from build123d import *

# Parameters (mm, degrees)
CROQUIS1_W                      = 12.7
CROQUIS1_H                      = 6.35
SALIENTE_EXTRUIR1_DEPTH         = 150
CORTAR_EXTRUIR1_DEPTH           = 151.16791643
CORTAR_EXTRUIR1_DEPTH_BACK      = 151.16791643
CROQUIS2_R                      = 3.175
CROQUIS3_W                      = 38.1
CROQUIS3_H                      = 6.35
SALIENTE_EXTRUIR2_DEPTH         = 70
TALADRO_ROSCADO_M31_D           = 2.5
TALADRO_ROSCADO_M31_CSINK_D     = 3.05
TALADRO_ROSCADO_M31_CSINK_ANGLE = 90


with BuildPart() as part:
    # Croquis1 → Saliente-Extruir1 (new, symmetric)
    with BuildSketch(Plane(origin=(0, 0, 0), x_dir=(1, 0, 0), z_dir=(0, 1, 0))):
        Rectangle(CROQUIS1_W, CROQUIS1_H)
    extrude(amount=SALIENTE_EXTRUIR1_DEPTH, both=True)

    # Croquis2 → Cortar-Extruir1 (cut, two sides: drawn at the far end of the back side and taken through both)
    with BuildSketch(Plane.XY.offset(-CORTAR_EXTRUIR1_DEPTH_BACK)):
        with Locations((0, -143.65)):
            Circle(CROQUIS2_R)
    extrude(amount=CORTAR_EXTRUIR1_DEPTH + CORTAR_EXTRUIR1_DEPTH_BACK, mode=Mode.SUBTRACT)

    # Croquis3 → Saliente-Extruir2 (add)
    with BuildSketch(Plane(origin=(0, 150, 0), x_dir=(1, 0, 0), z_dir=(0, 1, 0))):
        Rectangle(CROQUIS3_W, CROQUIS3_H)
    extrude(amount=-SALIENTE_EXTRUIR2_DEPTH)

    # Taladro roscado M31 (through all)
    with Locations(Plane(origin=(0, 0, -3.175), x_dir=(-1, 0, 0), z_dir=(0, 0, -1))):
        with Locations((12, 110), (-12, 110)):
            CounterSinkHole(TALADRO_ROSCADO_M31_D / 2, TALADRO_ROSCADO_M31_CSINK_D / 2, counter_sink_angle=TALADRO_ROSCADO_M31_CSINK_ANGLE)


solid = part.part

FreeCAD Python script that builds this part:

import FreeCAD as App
import Part
import Sketcher

V = App.Vector


def add_polygon(sketch, points):
    """Adds a closed chain of lines whose ends are joined by coincident constraints."""
    first, n = sketch.GeometryCount, len(points)
    for a, b in zip(points, points[1:] + points[:1]):
        sketch.addGeometry(Part.LineSegment(App.Vector(*a, 0), App.Vector(*b, 0)), False)
    for i in range(n):
        sketch.addConstraint(Sketcher.Constraint("Coincident", first + i, 2, first + (i + 1) % n, 1))

doc = App.newDocument("Part")
body = doc.addObject("PartDesign::Body", "Body")

sketch1 = body.newObject("Sketcher::SketchObject", "Sketch")
sketch1.AttachmentSupport = (doc.getObject("XZ_Plane"), [""])
sketch1.MapMode = "FlatFace"
add_polygon(sketch1, [(-6, -3), (-6, 3), (6, 3), (6, -3)])
sketch1.addConstraint(Sketcher.Constraint("Vertical", 0))
sketch1.addConstraint(Sketcher.Constraint("Horizontal", 1))
sketch1.addConstraint(Sketcher.Constraint("Vertical", 2))
sketch1.addConstraint(Sketcher.Constraint("Horizontal", 3))
sketch1.addConstraint(Sketcher.Constraint("Symmetric", 0, 2, 2, 2, -1, 1))
sketch1.addConstraint(Sketcher.Constraint("DistanceX", 1, 1, 1, 2, 12.7))
sketch1.addConstraint(Sketcher.Constraint("DistanceY", 0, 1, 0, 2, 6.35))
pad1 = body.newObject("PartDesign::Pad", "Pad")
pad1.Profile = sketch1
pad1.Length = 300
pad1.Midplane = True

sketch2 = body.newObject("Sketcher::SketchObject", "Sketch001")
sketch2.AttachmentSupport = (doc.getObject("XY_Plane"), [""])
sketch2.MapMode = "FlatFace"
sketch2.addGeometry(Part.Circle(V(0, -143.7, 0), V(0, 0, 1), 3.2), False)
sketch2.addConstraint(Sketcher.Constraint("PointOnObject", 0, 3, -2))
sketch2.addConstraint(Sketcher.Constraint("Diameter", 0, 6.35))
sketch2.addConstraint(Sketcher.Constraint("DistanceY", 0, 3, -1, 1, 143.65))
pocket1 = body.newObject("PartDesign::Pocket", "Pocket")
pocket1.Profile = sketch2
pocket1.Type = "ThroughAll"
pocket1.Midplane = True

sketch3 = body.newObject("Sketcher::SketchObject", "Sketch002")
sketch3.AttachmentSupport = (doc.getObject("XZ_Plane"), [""])
sketch3.MapMode = "FlatFace"
sketch3.AttachmentOffset = App.Placement(V(0, 0, -150), App.Rotation())
add_polygon(sketch3, [(-19, -3), (-19, 3), (19, 3), (19, -3)])
sketch3.addConstraint(Sketcher.Constraint("Vertical", 0))
sketch3.addConstraint(Sketcher.Constraint("Horizontal", 1))
sketch3.addConstraint(Sketcher.Constraint("Vertical", 2))
sketch3.addConstraint(Sketcher.Constraint("Horizontal", 3))
sketch3.addConstraint(Sketcher.Constraint("Symmetric", 0, 2, 2, 2, -1, 1))
sketch3.addConstraint(Sketcher.Constraint("DistanceX", 1, 1, 1, 2, 38.1))
sketch3.addConstraint(Sketcher.Constraint("DistanceY", 0, 1, 0, 2, 6.35))
pad2 = body.newObject("PartDesign::Pad", "Pad001")
pad2.Profile = sketch3
pad2.Length = 70

sketch4 = body.newObject("Sketcher::SketchObject", "Sketch003")
sketch4.AttachmentSupport = (doc.getObject("XY_Plane"), [""])
sketch4.MapMode = "FlatFace"
sketch4.AttachmentOffset = App.Placement(V(0, 0, -3.175), App.Rotation())
sketch4.addGeometry(Part.Circle(V(-12, 110, 0), V(0, 0, 1), 1.2), False)
sketch4.addGeometry(Part.Circle(V(12, 110, 0), V(0, 0, 1), 1.2), False)
sketch4.addConstraint(Sketcher.Constraint("Equal", 0, 1))
sketch4.addConstraint(Sketcher.Constraint("Symmetric", 0, 3, 1, 3, -2))
sketch4.addConstraint(Sketcher.Constraint("Diameter", 0, 2.5))
sketch4.addConstraint(Sketcher.Constraint("DistanceX", 0, 3, -1, 1, 12.0))
sketch4.addConstraint(Sketcher.Constraint("DistanceY", -1, 1, 0, 3, 110.0))
doc.recompute()
hole = body.newObject("PartDesign::Hole", "Hole")
hole.Profile = sketch4
hole.ThreadType = "None"
hole.Diameter = 2.5
hole.DepthType = "ThroughAll"
hole.HoleCutType = "Countersink"
hole.HoleCutDiameter = 3.05
hole.HoleCutCountersinkAngle = 90
hole.Reversed = True

doc.recompute()
